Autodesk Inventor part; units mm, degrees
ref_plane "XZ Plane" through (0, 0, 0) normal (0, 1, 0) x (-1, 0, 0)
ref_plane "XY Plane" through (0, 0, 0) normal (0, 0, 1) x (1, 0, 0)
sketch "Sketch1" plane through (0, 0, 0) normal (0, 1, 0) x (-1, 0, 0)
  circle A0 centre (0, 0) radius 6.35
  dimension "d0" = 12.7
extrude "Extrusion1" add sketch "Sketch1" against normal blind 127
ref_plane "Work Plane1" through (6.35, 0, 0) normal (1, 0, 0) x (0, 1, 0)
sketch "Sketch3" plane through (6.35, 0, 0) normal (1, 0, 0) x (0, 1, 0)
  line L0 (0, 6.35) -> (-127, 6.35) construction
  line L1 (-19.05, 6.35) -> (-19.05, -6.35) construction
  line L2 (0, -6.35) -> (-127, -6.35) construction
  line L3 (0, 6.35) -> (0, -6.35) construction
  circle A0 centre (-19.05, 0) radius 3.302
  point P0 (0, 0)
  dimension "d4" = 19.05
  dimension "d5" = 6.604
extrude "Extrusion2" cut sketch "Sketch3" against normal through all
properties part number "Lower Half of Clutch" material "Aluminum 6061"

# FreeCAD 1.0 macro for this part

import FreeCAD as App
import Part
import Sketcher
from FreeCAD import Vector
Q = App.Units.Quantity

doc = App.newDocument("Part")
body = doc.addObject("PartDesign::Body", "Body")

# Sketch on XZ plane
sketch1 = body.newObject("Sketcher::SketchObject", "Sketch")
sketch1.AttachmentSupport = (doc.getObject("XZ_Plane"), [""])
sketch1.MapMode = "FlatFace"
sketch1.addGeometry(Part.Circle(Vector(0, 0, 0), Vector(0, 0, 1), 6), False)
sketch1.addConstraint([
    Sketcher.Constraint("Coincident", 0, 3, -1, 1),
    Sketcher.Constraint("Diameter", 0, Q("0.5 in")),
])
pad1 = body.newObject("PartDesign::Pad", "Pad")
pad1.Profile = sketch1
pad1.Length = Q("5 in")

# Sketch on YZ plane
sketch2 = body.newObject("Sketcher::SketchObject", "Sketch001")
sketch2.AttachmentSupport = (doc.getObject("YZ_Plane"), [""])
sketch2.MapMode = "FlatFace"
sketch2.AttachmentOffset = App.Placement(Vector(0, 0, 0.25 * 25.4), App.Rotation())
sketch2.addGeometry(Part.Circle(Vector(-19.1, 0, 0), Vector(0, 0, 1), 3.3), False)
sketch2.addConstraint([
    Sketcher.Constraint("PointOnObject", 0, 3, -1),
    Sketcher.Constraint("Diameter", 0, Q("0.26 in")),
    Sketcher.Constraint("DistanceX", 0, 3, -1, 1, Q("0.75 in")),
])
pocket1 = body.newObject("PartDesign::Pocket", "Pocket")
pocket1.Profile = sketch2
pocket1.Type = "ThroughAll"

doc.recompute()
